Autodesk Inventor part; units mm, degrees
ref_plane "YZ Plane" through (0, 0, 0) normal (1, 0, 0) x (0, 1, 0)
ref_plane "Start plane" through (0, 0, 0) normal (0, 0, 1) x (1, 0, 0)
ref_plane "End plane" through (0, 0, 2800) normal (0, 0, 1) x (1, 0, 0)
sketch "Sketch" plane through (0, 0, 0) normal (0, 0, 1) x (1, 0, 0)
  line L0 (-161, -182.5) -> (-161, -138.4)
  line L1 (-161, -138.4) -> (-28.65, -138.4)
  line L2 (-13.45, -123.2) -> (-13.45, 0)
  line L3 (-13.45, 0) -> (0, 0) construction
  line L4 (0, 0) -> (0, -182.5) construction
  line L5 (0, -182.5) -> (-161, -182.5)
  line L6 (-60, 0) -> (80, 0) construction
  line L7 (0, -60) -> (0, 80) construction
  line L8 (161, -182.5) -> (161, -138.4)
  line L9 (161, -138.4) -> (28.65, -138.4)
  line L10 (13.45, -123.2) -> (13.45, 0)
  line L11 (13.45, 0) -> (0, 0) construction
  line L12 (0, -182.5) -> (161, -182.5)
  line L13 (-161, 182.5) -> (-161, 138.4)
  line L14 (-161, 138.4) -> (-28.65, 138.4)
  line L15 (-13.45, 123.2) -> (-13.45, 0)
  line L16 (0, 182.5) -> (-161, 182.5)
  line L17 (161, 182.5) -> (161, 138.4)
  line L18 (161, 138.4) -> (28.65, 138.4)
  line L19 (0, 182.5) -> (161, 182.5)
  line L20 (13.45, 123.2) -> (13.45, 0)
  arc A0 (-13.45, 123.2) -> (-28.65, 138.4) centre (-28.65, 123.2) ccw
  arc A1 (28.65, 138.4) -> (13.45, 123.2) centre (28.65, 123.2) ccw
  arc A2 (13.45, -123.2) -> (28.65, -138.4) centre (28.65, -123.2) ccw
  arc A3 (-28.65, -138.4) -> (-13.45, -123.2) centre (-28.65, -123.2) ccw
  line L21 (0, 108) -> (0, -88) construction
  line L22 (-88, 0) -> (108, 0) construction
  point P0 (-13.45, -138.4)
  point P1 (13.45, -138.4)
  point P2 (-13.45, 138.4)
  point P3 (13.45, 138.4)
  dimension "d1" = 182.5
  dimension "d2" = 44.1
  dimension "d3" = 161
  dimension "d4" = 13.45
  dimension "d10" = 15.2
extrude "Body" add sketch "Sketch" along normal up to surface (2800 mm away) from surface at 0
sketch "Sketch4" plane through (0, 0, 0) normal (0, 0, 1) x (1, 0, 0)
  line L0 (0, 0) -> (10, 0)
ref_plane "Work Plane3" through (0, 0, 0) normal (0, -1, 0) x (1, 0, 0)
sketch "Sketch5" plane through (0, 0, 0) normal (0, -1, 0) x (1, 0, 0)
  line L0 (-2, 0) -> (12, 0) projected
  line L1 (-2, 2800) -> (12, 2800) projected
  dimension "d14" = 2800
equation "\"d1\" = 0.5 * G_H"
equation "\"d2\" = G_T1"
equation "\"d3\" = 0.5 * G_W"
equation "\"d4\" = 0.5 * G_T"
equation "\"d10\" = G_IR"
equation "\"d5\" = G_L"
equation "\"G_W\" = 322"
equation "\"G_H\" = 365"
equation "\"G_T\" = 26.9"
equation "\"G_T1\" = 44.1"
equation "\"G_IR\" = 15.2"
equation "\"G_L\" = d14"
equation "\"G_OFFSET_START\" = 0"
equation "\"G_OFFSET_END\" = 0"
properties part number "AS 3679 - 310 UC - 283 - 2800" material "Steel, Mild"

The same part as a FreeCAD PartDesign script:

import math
import FreeCAD as App
import Part
import Sketcher
from FreeCAD import Vector

doc = App.newDocument("Part")
body = doc.addObject("PartDesign::Body", "Body")

sketch1 = body.newObject("Sketcher::SketchObject", "Sketch")
sketch1.AttachmentSupport = (doc.getObject("XY_Plane"), [""])
sketch1.MapMode = "FlatFace"
sketch1.addGeometry(Part.LineSegment(Vector(-161, -138, 0), Vector(-161, -182, 0)), False)
sketch1.addGeometry(Part.LineSegment(Vector(-161, -182, 0), Vector(161, -182, 0)), False)
sketch1.addGeometry(Part.LineSegment(Vector(161, -182, 0), Vector(161, -138, 0)), False)
sketch1.addGeometry(Part.LineSegment(Vector(161, -138, 0), Vector(29, -138, 0)), False)
sketch1.addGeometry(Part.ArcOfCircle(Part.Circle(Vector(29, -123, 0), Vector(0, 0, 1), 15), math.radians(180), math.radians(270)), False)
sketch1.addGeometry(Part.LineSegment(Vector(13, -123, 0), Vector(13, 123, 0)), False)
sketch1.addGeometry(Part.ArcOfCircle(Part.Circle(Vector(29, 123, 0), Vector(0, 0, 1), 15), math.radians(90), math.radians(180)), False)
sketch1.addGeometry(Part.LineSegment(Vector(29, 138, 0), Vector(161, 138, 0)), False)
sketch1.addGeometry(Part.LineSegment(Vector(161, 138, 0), Vector(161, 182, 0)), False)
sketch1.addGeometry(Part.LineSegment(Vector(161, 182, 0), Vector(-161, 182, 0)), False)
sketch1.addGeometry(Part.LineSegment(Vector(-161, 182, 0), Vector(-161, 138, 0)), False)
sketch1.addGeometry(Part.LineSegment(Vector(-161, 138, 0), Vector(-29, 138, 0)), False)
sketch1.addGeometry(Part.ArcOfCircle(Part.Circle(Vector(-29, 123, 0), Vector(0, 0, 1), 15), math.radians(0), math.radians(90)), False)
sketch1.addGeometry(Part.LineSegment(Vector(-13, 123, 0), Vector(-13, -123, 0)), False)
sketch1.addGeometry(Part.ArcOfCircle(Part.Circle(Vector(-29, -123, 0), Vector(0, 0, 1), 15), math.radians(-90), math.radians(0)), False)
sketch1.addGeometry(Part.LineSegment(Vector(-29, -138, 0), Vector(-161, -138, 0)), False)
sketch1.addConstraint(Sketcher.Constraint("Coincident", 0, 2, 1, 1))
sketch1.addConstraint(Sketcher.Constraint("Coincident", 1, 2, 2, 1))
sketch1.addConstraint(Sketcher.Constraint("Coincident", 2, 2, 3, 1))
sketch1.addConstraint(Sketcher.Constraint("Tangent", 3, 2, 4, 2))
sketch1.addConstraint(Sketcher.Constraint("Tangent", 4, 1, 5, 1))
sketch1.addConstraint(Sketcher.Constraint("Tangent", 5, 2, 6, 2))
sketch1.addConstraint(Sketcher.Constraint("Tangent", 6, 1, 7, 1))
sketch1.addConstraint(Sketcher.Constraint("Coincident", 7, 2, 8, 1))
sketch1.addConstraint(Sketcher.Constraint("Coincident", 8, 2, 9, 1))
sketch1.addConstraint(Sketcher.Constraint("Coincident", 9, 2, 10, 1))
sketch1.addConstraint(Sketcher.Constraint("Coincident", 10, 2, 11, 1))
sketch1.addConstraint(Sketcher.Constraint("Tangent", 11, 2, 12, 2))
sketch1.addConstraint(Sketcher.Constraint("Tangent", 12, 1, 13, 1))
sketch1.addConstraint(Sketcher.Constraint("Tangent", 13, 2, 14, 2))
sketch1.addConstraint(Sketcher.Constraint("Tangent", 14, 1, 15, 1))
sketch1.addConstraint(Sketcher.Constraint("Coincident", 15, 2, 0, 1))
sketch1.addConstraint(Sketcher.Constraint("Vertical", 0))
sketch1.addConstraint(Sketcher.Constraint("Horizontal", 1))
sketch1.addConstraint(Sketcher.Constraint("Vertical", 2))
sketch1.addConstraint(Sketcher.Constraint("Horizontal", 3))
sketch1.addConstraint(Sketcher.Constraint("Vertical", 5))
sketch1.addConstraint(Sketcher.Constraint("Horizontal", 7))
sketch1.addConstraint(Sketcher.Constraint("Vertical", 8))
sketch1.addConstraint(Sketcher.Constraint("Horizontal", 9))
sketch1.addConstraint(Sketcher.Constraint("Vertical", 10))
sketch1.addConstraint(Sketcher.Constraint("Horizontal", 11))
sketch1.addConstraint(Sketcher.Constraint("Vertical", 13))
sketch1.addConstraint(Sketcher.Constraint("Horizontal", 15))
sketch1.addConstraint(Sketcher.Constraint("Equal", 4, 6))
sketch1.addConstraint(Sketcher.Constraint("Equal", 6, 12))
sketch1.addConstraint(Sketcher.Constraint("Equal", 12, 14))
sketch1.addConstraint(Sketcher.Constraint("Symmetric", 4, 3, 12, 3, -1, 1))
sketch1.addConstraint(Sketcher.Constraint("Symmetric", 0, 2, 8, 2, -1, 1))
sketch1.addConstraint(Sketcher.Constraint("Symmetric", 7, 2, 10, 2, -2))
sketch1.addConstraint(Sketcher.Constraint("Symmetric", 2, 2, 15, 2, -2))
sketch1.addConstraint(Sketcher.Constraint("Radius", 4, 15.2))
sketch1.addConstraint(Sketcher.Constraint("DistanceY", 0, 2, 0, 1, 44.1))
sketch1.addConstraint(Sketcher.Constraint("DistanceX", 0, 2, -1, 1, 161.0))
sketch1.addConstraint(Sketcher.Constraint("DistanceY", 0, 2, -1, 1, 182.5))
sketch1.addConstraint(Sketcher.Constraint("DistanceX", -1, 1, 4, 1, 13.45))
pad1 = body.newObject("PartDesign::Pad", "Pad")
pad1.Profile = sketch1
pad1.Length = 2800

doc.recompute()
